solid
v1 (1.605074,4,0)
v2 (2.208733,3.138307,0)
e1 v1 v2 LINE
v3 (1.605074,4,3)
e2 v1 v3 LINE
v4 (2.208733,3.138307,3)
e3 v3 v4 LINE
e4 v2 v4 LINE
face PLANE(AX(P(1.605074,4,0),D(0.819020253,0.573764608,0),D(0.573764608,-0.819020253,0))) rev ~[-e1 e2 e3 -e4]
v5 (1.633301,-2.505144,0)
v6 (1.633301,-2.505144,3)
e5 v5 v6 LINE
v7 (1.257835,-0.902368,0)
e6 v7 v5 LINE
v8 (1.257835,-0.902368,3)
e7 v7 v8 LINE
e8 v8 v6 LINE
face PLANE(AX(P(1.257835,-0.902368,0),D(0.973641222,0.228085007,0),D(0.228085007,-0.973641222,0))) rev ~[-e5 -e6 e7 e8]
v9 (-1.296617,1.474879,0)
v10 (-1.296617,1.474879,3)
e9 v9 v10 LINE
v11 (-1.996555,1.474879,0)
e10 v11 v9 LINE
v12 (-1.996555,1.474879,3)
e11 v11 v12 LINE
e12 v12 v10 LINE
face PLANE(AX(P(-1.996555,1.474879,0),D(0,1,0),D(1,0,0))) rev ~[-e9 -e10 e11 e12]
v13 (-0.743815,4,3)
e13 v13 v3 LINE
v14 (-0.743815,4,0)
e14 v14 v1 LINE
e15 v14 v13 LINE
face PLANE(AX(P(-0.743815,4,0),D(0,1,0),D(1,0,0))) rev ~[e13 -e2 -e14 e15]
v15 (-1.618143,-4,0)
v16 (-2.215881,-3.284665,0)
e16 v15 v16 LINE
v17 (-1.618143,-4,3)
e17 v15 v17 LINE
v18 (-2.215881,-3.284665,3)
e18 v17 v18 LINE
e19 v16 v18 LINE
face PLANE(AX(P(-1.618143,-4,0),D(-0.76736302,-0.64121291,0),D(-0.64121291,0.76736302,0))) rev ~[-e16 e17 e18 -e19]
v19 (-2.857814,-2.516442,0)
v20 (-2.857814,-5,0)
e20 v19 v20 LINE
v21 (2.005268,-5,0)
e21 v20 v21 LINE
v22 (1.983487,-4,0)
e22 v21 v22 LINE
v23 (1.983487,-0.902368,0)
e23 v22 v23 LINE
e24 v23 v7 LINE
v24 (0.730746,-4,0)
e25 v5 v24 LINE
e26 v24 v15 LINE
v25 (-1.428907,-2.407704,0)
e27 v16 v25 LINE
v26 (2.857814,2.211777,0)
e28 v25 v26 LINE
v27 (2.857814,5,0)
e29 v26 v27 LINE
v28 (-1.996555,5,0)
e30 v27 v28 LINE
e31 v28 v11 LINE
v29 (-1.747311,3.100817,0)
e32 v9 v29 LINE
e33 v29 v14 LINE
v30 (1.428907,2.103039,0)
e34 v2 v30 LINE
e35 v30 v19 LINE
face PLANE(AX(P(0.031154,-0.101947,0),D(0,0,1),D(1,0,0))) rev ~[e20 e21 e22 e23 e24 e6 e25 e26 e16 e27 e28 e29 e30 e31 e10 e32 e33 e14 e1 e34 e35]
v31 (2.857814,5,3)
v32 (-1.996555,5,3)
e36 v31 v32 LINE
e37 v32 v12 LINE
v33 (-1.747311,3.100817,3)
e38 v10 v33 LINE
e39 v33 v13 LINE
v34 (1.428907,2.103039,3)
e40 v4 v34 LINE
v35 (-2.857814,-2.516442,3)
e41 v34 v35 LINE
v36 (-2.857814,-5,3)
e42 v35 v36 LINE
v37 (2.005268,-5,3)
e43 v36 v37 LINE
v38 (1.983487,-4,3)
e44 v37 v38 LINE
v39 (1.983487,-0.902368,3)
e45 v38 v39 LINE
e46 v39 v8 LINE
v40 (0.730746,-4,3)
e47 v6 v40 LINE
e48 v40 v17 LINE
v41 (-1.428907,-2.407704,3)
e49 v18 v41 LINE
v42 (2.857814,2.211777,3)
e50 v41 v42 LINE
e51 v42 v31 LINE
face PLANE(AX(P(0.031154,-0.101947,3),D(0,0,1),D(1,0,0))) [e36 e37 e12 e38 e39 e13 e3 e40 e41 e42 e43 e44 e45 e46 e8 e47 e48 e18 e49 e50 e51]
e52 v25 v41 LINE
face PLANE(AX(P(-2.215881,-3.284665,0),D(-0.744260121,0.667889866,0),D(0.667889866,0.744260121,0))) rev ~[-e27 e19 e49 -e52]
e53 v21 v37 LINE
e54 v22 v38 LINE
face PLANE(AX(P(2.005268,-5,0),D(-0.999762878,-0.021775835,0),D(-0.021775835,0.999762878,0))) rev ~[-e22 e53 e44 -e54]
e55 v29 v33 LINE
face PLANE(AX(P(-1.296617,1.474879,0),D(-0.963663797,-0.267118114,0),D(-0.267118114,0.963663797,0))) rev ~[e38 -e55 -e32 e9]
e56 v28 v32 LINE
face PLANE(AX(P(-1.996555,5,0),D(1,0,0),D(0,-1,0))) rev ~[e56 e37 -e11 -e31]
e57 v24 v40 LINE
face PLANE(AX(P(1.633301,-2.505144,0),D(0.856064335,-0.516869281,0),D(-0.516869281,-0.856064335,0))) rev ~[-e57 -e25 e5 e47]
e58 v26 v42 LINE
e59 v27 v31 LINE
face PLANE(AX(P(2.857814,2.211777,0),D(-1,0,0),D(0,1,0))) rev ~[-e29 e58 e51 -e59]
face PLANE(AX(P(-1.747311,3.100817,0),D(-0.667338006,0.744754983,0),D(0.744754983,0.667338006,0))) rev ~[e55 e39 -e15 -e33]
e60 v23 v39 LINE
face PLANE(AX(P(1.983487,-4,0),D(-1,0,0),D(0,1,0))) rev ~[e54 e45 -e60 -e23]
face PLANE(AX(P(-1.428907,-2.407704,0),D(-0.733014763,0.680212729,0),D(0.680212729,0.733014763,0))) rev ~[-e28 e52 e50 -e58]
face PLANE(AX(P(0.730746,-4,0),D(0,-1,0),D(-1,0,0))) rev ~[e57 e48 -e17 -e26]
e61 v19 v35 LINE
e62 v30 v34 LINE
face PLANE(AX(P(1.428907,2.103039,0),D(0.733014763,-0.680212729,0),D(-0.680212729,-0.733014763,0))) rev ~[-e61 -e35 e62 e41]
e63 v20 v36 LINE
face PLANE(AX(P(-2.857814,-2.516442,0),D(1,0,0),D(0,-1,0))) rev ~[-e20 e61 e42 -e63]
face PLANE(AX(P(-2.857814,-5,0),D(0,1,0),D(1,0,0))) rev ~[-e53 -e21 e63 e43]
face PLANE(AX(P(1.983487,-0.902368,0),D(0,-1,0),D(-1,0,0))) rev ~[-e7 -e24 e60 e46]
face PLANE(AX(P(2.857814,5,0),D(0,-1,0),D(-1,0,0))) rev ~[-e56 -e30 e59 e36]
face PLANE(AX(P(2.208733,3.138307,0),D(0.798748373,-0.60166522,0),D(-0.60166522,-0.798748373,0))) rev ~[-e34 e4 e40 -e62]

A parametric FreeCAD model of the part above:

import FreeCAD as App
import Part
import Sketcher

V = App.Vector

doc = App.newDocument("Part")
body = doc.addObject("PartDesign::Body", "Body")

sketch1 = body.newObject("Sketcher::SketchObject", "Sketch")
sketch1.AttachmentSupport = (doc.getObject("XY_Plane"), [""])
sketch1.MapMode = "FlatFace"
sketch1.addGeometry([
    Part.LineSegment(V(-1.4, -2.4, 0), V(2.9, 2.2, 0)),
    Part.LineSegment(V(2.9, 2.2, 0), V(2.9, 5, 0)),
    Part.LineSegment(V(2.9, 5, 0), V(-2, 5, 0)),
    Part.LineSegment(V(-2, 5, 0), V(-2, 1.5, 0)),
    Part.LineSegment(V(-2, 1.5, 0), V(-1.3, 1.5, 0)),
    Part.LineSegment(V(-1.3, 1.5, 0), V(-1.7, 3.1, 0)),
    Part.LineSegment(V(-1.7, 3.1, 0), V(-0.7, 4, 0)),
    Part.LineSegment(V(-0.7, 4, 0), V(1.6, 4, 0)),
    Part.LineSegment(V(1.6, 4, 0), V(2.2, 3.1, 0)),
    Part.LineSegment(V(2.2, 3.1, 0), V(1.4, 2.1, 0)),
    Part.LineSegment(V(1.4, 2.1, 0), V(-2.9, -2.5, 0)),
    Part.LineSegment(V(-2.9, -2.5, 0), V(-2.9, -5, 0)),
    Part.LineSegment(V(-2.9, -5, 0), V(2, -5, 0)),
    Part.LineSegment(V(2, -5, 0), V(2, -4, 0)),
    Part.LineSegment(V(2, -4, 0), V(2, -0.9, 0)),
    Part.LineSegment(V(2, -0.9, 0), V(1.3, -0.9, 0)),
    Part.LineSegment(V(1.3, -0.9, 0), V(1.6, -2.5, 0)),
    Part.LineSegment(V(1.6, -2.5, 0), V(0.7, -4, 0)),
    Part.LineSegment(V(0.7, -4, 0), V(-1.6, -4, 0)),
    Part.LineSegment(V(-1.6, -4, 0), V(-2.2, -3.3, 0)),
    Part.LineSegment(V(-2.2, -3.3, 0), V(-1.4, -2.4, 0)),
], False)
sketch1.addConstraint([
    Sketcher.Constraint("Coincident", 0, 2, 1, 1),
    Sketcher.Constraint("Coincident", 1, 2, 2, 1),
    Sketcher.Constraint("Coincident", 2, 2, 3, 1),
    Sketcher.Constraint("Coincident", 3, 2, 4, 1),
    Sketcher.Constraint("Coincident", 4, 2, 5, 1),
    Sketcher.Constraint("Coincident", 5, 2, 6, 1),
    Sketcher.Constraint("Coincident", 6, 2, 7, 1),
    Sketcher.Constraint("Coincident", 7, 2, 8, 1),
    Sketcher.Constraint("Coincident", 8, 2, 9, 1),
    Sketcher.Constraint("Coincident", 9, 2, 10, 1),
    Sketcher.Constraint("Coincident", 10, 2, 11, 1),
    Sketcher.Constraint("Coincident", 11, 2, 12, 1),
    Sketcher.Constraint("Coincident", 12, 2, 13, 1),
    Sketcher.Constraint("Coincident", 13, 2, 14, 1),
    Sketcher.Constraint("Coincident", 14, 2, 15, 1),
    Sketcher.Constraint("Coincident", 15, 2, 16, 1),
    Sketcher.Constraint("Coincident", 16, 2, 17, 1),
    Sketcher.Constraint("Coincident", 17, 2, 18, 1),
    Sketcher.Constraint("Coincident", 18, 2, 19, 1),
    Sketcher.Constraint("Coincident", 19, 2, 20, 1),
    Sketcher.Constraint("Coincident", 20, 2, 0, 1),
    Sketcher.Constraint("Vertical", 1),
    Sketcher.Constraint("Horizontal", 2),
    Sketcher.Constraint("Vertical", 3),
    Sketcher.Constraint("Horizontal", 4),
    Sketcher.Constraint("Horizontal", 7),
    Sketcher.Constraint("Vertical", 11),
    Sketcher.Constraint("Horizontal", 12),
    Sketcher.Constraint("Vertical", 14),
    Sketcher.Constraint("Horizontal", 15),
    Sketcher.Constraint("Horizontal", 18),
    Sketcher.Constraint("Symmetric", 1, 2, 11, 2, -1, 1),
    Sketcher.Constraint("Parallel", 0, 10),
    Sketcher.Constraint("Horizontal", 13, 2, 17, 2),
    Sketcher.Constraint("Equal", 7, 18),
    Sketcher.Constraint("Equal", 0, 10),
    Sketcher.Constraint("DistanceY", -1, 1, 1, 2, 5.0),
    Sketcher.Constraint("DistanceY", -1, 1, 6, 2, 4.0),
    Sketcher.Constraint("DistanceY", 13, 2, -1, 1, 4.0),
    Sketcher.Constraint("DistanceX", 10, 2, 6, 2, 2.113999),
    Sketcher.Constraint("Distance", 19, 0.932199),
    Sketcher.Constraint("Distance", 20, 1.178299),
    Sketcher.Constraint("DistanceX", 2, 2, 2, 1, 4.854369),
    Sketcher.Constraint("DistanceX", 4, 1, 4, 2, 0.699938),
    Sketcher.Constraint("DistanceX", 7, 1, 7, 2, 2.348889),
    Sketcher.Constraint("DistanceX", 15, 2, 15, 1, 0.725652),
    Sketcher.Constraint("DistanceY", 3, 2, 3, 1, 3.525121),
    Sketcher.Constraint("DistanceY", 14, 1, 14, 2, 3.097632),
    Sketcher.Constraint("DistanceX", -1, 1, 16, 2, 1.633301),
    Sketcher.Constraint("DistanceY", 3, 2, 0, 2, 0.736898),
    Sketcher.Constraint("DistanceX", 4, 2, 6, 2, 0.552802),
    Sketcher.Constraint("DistanceX", 11, 2, 13, 2, 4.841301),
    Sketcher.Constraint("DistanceY", 10, 2, 16, 2, 0.011298),
    Sketcher.Constraint("Distance", 0, 6.30203),
    Sketcher.Constraint("DistanceX", 12, 1, 12, 2, 4.863082),
    Sketcher.Constraint("DistanceY", 11, 2, 11, 1, 2.483558),
    Sketcher.Constraint("DistanceX", 5, 2, -1, 1, 1.747311),
    Sketcher.Constraint("DistanceY", -1, 1, 9, 2, 2.103039),
    Sketcher.Constraint("DistanceX", 19, 2, -1, 1, 2.215881),
    Sketcher.Constraint("DistanceY", 3, 2, 5, 2, 1.625938),
    Sketcher.Constraint("DistanceX", 7, 2, 8, 2, 0.603659),
    Sketcher.Constraint("DistanceY", 0, 2, 8, 2, 0.92653),
])
pad1 = body.newObject("PartDesign::Pad", "Pad")
pad1.Profile = sketch1
pad1.Length = 3

doc.recompute()
